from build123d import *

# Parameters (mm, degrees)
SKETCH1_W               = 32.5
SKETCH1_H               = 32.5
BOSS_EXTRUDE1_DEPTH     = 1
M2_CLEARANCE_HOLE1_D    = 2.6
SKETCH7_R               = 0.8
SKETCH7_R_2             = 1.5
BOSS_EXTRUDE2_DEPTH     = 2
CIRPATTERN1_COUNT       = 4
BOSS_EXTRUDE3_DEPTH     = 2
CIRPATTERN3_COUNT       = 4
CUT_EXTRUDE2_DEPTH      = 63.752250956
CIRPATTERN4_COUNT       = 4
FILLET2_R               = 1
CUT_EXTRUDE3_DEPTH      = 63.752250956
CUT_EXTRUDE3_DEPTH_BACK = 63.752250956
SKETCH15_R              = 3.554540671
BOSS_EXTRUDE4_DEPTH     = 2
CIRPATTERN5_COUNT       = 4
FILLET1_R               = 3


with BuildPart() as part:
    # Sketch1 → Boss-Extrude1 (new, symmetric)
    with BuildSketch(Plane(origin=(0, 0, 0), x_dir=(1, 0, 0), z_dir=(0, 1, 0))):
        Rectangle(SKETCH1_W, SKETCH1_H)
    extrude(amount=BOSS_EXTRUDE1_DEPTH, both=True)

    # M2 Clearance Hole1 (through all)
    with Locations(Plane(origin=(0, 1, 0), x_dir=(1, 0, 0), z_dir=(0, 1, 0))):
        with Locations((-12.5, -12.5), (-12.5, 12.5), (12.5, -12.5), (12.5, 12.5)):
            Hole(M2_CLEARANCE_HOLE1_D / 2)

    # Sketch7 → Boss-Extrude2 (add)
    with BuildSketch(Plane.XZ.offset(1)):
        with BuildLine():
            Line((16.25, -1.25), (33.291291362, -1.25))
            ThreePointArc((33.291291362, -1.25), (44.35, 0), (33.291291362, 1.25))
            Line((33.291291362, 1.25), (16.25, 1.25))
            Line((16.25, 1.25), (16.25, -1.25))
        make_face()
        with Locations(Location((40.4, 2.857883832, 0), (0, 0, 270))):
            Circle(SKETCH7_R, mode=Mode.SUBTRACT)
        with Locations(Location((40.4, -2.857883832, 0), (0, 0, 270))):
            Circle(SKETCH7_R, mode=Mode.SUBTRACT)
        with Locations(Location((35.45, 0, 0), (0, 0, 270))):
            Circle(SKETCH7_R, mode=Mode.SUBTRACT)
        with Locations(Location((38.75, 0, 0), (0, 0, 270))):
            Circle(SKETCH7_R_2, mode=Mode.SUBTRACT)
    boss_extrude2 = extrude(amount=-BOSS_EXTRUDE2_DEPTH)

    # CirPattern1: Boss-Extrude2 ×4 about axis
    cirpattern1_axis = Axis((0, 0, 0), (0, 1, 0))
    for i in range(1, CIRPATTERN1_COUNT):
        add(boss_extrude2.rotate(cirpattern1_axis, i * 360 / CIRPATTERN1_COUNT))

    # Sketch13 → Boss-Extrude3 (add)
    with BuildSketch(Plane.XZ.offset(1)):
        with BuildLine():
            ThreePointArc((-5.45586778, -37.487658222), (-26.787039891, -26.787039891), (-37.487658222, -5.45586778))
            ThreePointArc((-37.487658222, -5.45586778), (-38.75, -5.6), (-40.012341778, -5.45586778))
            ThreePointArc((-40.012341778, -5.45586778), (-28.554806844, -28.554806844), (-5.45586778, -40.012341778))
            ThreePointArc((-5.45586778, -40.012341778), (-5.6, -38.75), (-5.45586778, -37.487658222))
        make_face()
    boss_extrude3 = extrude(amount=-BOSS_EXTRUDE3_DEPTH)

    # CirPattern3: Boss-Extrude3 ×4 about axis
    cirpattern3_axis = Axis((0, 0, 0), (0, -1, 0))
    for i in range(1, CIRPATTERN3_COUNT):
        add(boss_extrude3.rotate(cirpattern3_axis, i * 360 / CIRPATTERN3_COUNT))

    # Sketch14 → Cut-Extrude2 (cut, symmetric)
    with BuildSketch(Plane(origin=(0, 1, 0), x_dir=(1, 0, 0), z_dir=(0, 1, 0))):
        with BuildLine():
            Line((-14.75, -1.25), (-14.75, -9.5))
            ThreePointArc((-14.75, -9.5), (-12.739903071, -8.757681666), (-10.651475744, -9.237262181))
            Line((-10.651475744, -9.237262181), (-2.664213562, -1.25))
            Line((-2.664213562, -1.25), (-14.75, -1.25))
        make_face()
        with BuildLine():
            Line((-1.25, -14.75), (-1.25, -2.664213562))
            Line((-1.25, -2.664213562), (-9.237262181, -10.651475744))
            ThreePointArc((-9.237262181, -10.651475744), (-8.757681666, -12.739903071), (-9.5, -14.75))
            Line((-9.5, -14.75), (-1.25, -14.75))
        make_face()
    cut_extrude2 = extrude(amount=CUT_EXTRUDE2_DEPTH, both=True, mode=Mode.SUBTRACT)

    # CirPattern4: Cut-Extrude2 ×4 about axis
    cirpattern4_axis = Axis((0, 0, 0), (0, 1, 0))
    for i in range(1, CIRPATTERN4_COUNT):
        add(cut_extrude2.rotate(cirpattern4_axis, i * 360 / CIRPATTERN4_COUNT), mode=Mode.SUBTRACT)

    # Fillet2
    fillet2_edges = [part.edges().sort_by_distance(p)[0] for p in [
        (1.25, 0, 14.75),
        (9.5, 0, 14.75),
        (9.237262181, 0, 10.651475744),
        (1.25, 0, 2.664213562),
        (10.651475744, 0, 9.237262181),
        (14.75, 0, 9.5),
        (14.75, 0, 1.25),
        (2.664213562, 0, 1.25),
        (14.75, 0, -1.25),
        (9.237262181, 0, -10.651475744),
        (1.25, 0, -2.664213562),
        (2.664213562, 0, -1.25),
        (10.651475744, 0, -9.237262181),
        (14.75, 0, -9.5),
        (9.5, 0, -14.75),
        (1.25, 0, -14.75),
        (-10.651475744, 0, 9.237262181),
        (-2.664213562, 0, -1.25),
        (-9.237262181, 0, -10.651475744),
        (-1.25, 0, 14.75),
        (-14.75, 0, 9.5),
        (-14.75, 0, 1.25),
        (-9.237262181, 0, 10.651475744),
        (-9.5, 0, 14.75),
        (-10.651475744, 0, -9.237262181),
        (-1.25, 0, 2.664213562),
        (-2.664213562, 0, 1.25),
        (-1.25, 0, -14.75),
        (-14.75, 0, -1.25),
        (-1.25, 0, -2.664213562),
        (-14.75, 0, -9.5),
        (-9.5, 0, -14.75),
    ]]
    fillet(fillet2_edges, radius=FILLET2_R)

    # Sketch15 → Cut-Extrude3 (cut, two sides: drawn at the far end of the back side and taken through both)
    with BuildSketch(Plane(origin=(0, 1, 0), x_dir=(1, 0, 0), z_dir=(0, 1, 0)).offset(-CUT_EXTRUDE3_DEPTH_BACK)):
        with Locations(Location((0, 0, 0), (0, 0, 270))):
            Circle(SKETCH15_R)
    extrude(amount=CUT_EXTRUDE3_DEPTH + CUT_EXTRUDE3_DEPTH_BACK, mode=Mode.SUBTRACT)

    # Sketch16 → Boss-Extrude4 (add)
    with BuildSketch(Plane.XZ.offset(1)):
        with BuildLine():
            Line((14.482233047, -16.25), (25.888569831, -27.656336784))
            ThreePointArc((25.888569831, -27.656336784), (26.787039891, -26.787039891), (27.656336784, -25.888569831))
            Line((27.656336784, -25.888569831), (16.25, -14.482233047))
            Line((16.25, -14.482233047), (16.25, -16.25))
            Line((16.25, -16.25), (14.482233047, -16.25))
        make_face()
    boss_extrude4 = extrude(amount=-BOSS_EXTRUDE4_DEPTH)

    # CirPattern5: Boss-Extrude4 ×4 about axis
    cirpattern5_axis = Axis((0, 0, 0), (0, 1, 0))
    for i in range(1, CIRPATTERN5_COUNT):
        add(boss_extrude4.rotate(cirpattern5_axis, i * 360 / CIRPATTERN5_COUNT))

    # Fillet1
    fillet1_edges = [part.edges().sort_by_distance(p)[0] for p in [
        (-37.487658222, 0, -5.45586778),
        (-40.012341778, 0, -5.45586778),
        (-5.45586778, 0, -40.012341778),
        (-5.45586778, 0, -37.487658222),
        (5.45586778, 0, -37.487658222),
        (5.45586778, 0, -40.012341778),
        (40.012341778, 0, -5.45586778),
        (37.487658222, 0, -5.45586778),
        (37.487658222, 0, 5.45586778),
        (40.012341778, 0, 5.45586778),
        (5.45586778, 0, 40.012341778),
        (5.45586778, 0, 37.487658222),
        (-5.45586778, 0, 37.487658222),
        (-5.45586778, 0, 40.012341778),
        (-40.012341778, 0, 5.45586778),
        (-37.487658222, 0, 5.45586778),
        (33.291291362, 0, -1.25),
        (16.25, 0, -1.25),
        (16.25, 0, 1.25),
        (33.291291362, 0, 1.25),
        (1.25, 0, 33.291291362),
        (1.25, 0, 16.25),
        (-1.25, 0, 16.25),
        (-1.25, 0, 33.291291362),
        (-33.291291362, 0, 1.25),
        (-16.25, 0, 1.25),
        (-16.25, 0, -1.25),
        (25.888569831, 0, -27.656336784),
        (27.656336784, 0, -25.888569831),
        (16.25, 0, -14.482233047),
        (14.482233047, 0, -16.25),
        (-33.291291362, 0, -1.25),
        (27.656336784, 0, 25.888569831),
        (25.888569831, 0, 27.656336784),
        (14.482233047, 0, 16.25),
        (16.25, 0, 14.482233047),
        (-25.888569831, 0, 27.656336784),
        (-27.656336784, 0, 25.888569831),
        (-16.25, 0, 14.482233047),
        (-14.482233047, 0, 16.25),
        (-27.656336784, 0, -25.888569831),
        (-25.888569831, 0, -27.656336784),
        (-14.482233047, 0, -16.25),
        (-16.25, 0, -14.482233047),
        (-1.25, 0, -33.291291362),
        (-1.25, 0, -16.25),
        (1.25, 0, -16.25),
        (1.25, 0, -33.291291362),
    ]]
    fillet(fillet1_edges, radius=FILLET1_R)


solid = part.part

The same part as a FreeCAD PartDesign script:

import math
import FreeCAD as App
import Part
import Sketcher

V = App.Vector
Q = App.Units.Quantity


def edges_at(feature, points):
    """Names of the edges that pass closest to the given points."""
    edges = feature.Shape.Edges
    near = lambda p: min(range(len(edges)), key=lambda i: edges[i].distToShape(Part.Vertex(*p))[0])
    return sorted({f"Edge{near(p) + 1}" for p in points})

doc = App.newDocument("Part")
body = doc.addObject("PartDesign::Body", "Body")

# Sketch on XZ plane
sketch1 = body.newObject("Sketcher::SketchObject", "Sketch")
sketch1.AttachmentSupport = (doc.getObject("XZ_Plane"), [""])
sketch1.MapMode = "FlatFace"
sketch1.addGeometry([
    Part.LineSegment(V(-16, -16, 0), V(-16, 16, 0)),
    Part.LineSegment(V(-16, 16, 0), V(16, 16, 0)),
    Part.LineSegment(V(16, 16, 0), V(16, -16, 0)),
    Part.LineSegment(V(16, -16, 0), V(-16, -16, 0)),
], False)
sketch1.addConstraint([
    Sketcher.Constraint("Coincident", 0, 2, 1, 1),
    Sketcher.Constraint("Coincident", 1, 2, 2, 1),
    Sketcher.Constraint("Coincident", 2, 2, 3, 1),
    Sketcher.Constraint("Coincident", 3, 2, 0, 1),
    Sketcher.Constraint("Vertical", 0),
    Sketcher.Constraint("Horizontal", 1),
    Sketcher.Constraint("Vertical", 2),
    Sketcher.Constraint("Horizontal", 3),
    Sketcher.Constraint("Symmetric", 0, 2, 2, 2, -1, 1),
    Sketcher.Constraint("Equal", 3, 0),
    Sketcher.Constraint("DistanceX", 1, 1, 1, 2, 32.5),
])
pad1 = body.newObject("PartDesign::Pad", "Pad")
pad1.Profile = sketch1
pad1.Length = 2
pad1.Midplane = True

# Sketch on XZ plane
sketch2 = body.newObject("Sketcher::SketchObject", "Sketch001")
sketch2.AttachmentSupport = (doc.getObject("XZ_Plane"), [""])
sketch2.MapMode = "FlatFace"
sketch2.AttachmentOffset = App.Placement(V(0, 0, -1), App.Rotation())
sketch2.addGeometry([
    Part.Circle(V(-12.5, 12.5, 0), V(0, 0, 1), 1.3),
    Part.Circle(V(-12.5, -12.5, 0), V(0, 0, 1), 1.3),
    Part.Circle(V(12.5, 12.5, 0), V(0, 0, 1), 1.3),
    Part.Circle(V(12.5, -12.5, 0), V(0, 0, 1), 1.3),
], False)
sketch2.addConstraint([
    Sketcher.Constraint("Equal", 0, 1),
    Sketcher.Constraint("Equal", 1, 2),
    Sketcher.Constraint("Equal", 2, 3),
    Sketcher.Constraint("Symmetric", 1, 3, 2, 3, -1, 1),
    Sketcher.Constraint("Symmetric", 0, 3, 3, 3, -1, 1),
    Sketcher.Constraint("Symmetric", 0, 3, 2, 3, -2),
    Sketcher.Constraint("Diameter", 0, 2.6),
    Sketcher.Constraint("DistanceY", 1, 3, 0, 3, 25.0),
    Sketcher.Constraint("DistanceX", 0, 3, 2, 3, 25.0),
])
doc.recompute()
hole = body.newObject("PartDesign::Hole", "Hole")
hole.Profile = sketch2
hole.ThreadType = "None"
hole.Diameter = 2.6
hole.DepthType = "ThroughAll"
hole.Reversed = True

# Sketch on XZ plane
sketch3 = body.newObject("Sketcher::SketchObject", "Sketch002")
sketch3.AttachmentSupport = (doc.getObject("XZ_Plane"), [""])
sketch3.MapMode = "FlatFace"
sketch3.AttachmentOffset = App.Placement(V(0, 0, 1), App.Rotation())
sketch3.addGeometry([
    Part.LineSegment(V(16.2, -1.2, 0), V(33.3, -1.2, 0)),  # 0
    Part.ArcOfCircle(Part.Circle(V(38.8, 0, 0), V(0, 0, 1), 5.6), math.radians(-167), math.radians(167)),  # 1
    Part.LineSegment(V(33.3, 1.2, 0), V(16.2, 1.2, 0)),  # 2
    Part.LineSegment(V(16.2, 1.2, 0), V(16.2, -1.2, 0)),  # 3
    Part.Circle(V(40.4, -2.9, 0), V(0, 0, 1), 0.8),  # 4
    Part.Circle(V(35.5, 0, 0), V(0, 0, 1), 0.8),  # 5
    Part.Circle(V(38.8, 0, 0), V(0, 0, 1), 1.5),  # 6
    Part.Circle(V(40.4, 2.9, 0), V(0, 0, 1), 0.8),  # 7
], False)
sketch3.addConstraint([
    Sketcher.Constraint("Coincident", 0, 2, 1, 1),
    Sketcher.Constraint("Coincident", 1, 2, 2, 1),
    Sketcher.Constraint("Coincident", 2, 2, 3, 1),
    Sketcher.Constraint("Coincident", 3, 2, 0, 1),
    Sketcher.Constraint("Horizontal", 0),
    Sketcher.Constraint("Horizontal", 2),
    Sketcher.Constraint("Vertical", 3),
    Sketcher.Constraint("Coincident", 6, 3, 1, 3),
    Sketcher.Constraint("Equal", 4, 5),
    Sketcher.Constraint("Equal", 5, 7),
    Sketcher.Constraint("Symmetric", 4, 3, 7, 3, -1),
    Sketcher.Constraint("Symmetric", 0, 2, 1, 2, -1),
    Sketcher.Constraint("PointOnObject", 5, 3, -1),
    Sketcher.Constraint("Diameter", 6, 3.0),
    Sketcher.Constraint("Diameter", 4, 1.6),
    Sketcher.Constraint("Radius", 1, 5.6),
    Sketcher.Constraint("DistanceY", 3, 2, 3, 1, 2.5),
    Sketcher.Constraint("DistanceX", -1, 1, 4, 3, 40.4),
    Sketcher.Constraint("DistanceX", 5, 3, 1, 3, 3.3),
    Sketcher.Constraint("DistanceX", 2, 2, 5, 3, 19.2),
    Sketcher.Constraint("DistanceX", -1, 1, 1, 3, 38.75),
    Sketcher.Constraint("DistanceY", 4, 3, -1, 1, 2.857884),
])
pad2 = body.newObject("PartDesign::Pad", "Pad001")
pad2.Profile = sketch3
pad2.Length = 2
pad2.Reversed = True
doc.recompute()

polarpattern = body.newObject("PartDesign::PolarPattern", "PolarPattern")
polarpattern.Originals = [pad2]
polarpattern.Axis = (doc.getObject("Y_Axis"), [""])
polarpattern.Angle = 360
polarpattern.Occurrences = 4
body.Tip = polarpattern

# Sketch on XZ plane
sketch4 = body.newObject("Sketcher::SketchObject", "Sketch003")
sketch4.AttachmentSupport = (doc.getObject("XZ_Plane"), [""])
sketch4.MapMode = "FlatFace"
sketch4.AttachmentOffset = App.Placement(V(0, 0, 1), App.Rotation())
sketch4.addGeometry([
    Part.ArcOfCircle(Part.Circle(V(0, 0, 0), V(0, 0, 1), 37.9), math.radians(-172), math.radians(-98)),
    Part.ArcOfCircle(Part.Circle(V(-38.8, 0, 0), V(0, 0, 1), 5.6), math.radians(-103), math.radians(-77)),
    Part.ArcOfCircle(Part.Circle(V(0, 0, 0), V(0, 0, 1), 40.4), math.radians(-172), math.radians(-98)),
    Part.ArcOfCircle(Part.Circle(V(0, -38.8, 0), V(0, 0, 1), 5.6), math.radians(167), math.radians(193)),
], False)
sketch4.addConstraint([
    Sketcher.Constraint("Coincident", 0, 1, 1, 2),
    Sketcher.Constraint("Coincident", 1, 1, 2, 1),
    Sketcher.Constraint("Coincident", 2, 2, 3, 2),
    Sketcher.Constraint("Coincident", 3, 1, 0, 2),
    Sketcher.Constraint("Coincident", 0, 3, -1, 1),
    Sketcher.Constraint("Coincident", 2, 3, -1, 1),
    Sketcher.Constraint("Equal", 1, 3),
    Sketcher.Constraint("PointOnObject", 1, 3, -1),
    Sketcher.Constraint("PointOnObject", 3, 3, -2),
    Sketcher.Constraint("Horizontal", 0, 1, 1, 1),
    Sketcher.Constraint("Vertical", 2, 2, 3, 1),
    Sketcher.Constraint("Radius", 1, 5.6),
    Sketcher.Constraint("DistanceX", 1, 3, -1, 1, 38.75),
    Sketcher.Constraint("Radius", 0, 37.882595),
])
pad3 = body.newObject("PartDesign::Pad", "Pad002")
pad3.Profile = sketch4
pad3.Length = 2
pad3.Reversed = True
doc.recompute()

polarpattern2 = body.newObject("PartDesign::PolarPattern", "PolarPattern001")
polarpattern2.Originals = [pad3]
polarpattern2.Axis = (doc.getObject("Y_Axis"), [""])
polarpattern2.Angle = 360
polarpattern2.Occurrences = 4
body.Tip = polarpattern2

# Sketch on XZ plane
sketch5 = body.newObject("Sketcher::SketchObject", "Sketch004")
sketch5.AttachmentSupport = (doc.getObject("XZ_Plane"), [""])
sketch5.MapMode = "FlatFace"
sketch5.AttachmentOffset = App.Placement(V(0, 0, -1), App.Rotation())
sketch5.addGeometry([
    Part.LineSegment(V(-14.8, 1.2, 0), V(-14.8, 9.5, 0)),  # 0
    Part.ArcOfCircle(Part.Circle(V(-12.5, 12.5, 0), V(0, 0, 1), 3.8), math.radians(-127), math.radians(-60)),  # 1
    Part.LineSegment(V(-10.7, 9.2, 0), V(-2.7, 1.2, 0)),  # 2
    Part.LineSegment(V(-2.7, 1.2, 0), V(-14.8, 1.2, 0)),  # 3
    Part.LineSegment(V(-1.2, 14.8, 0), V(-1.2, 2.7, 0)),  # 4
    Part.LineSegment(V(-1.2, 2.7, 0), V(-9.2, 10.7, 0)),  # 5
    Part.ArcOfCircle(Part.Circle(V(-12.5, 12.5, 0), V(0, 0, 1), 3.8), math.radians(-30), math.radians(37)),  # 6
    Part.LineSegment(V(-9.5, 14.8, 0), V(-1.2, 14.8, 0)),  # 7
], False)
sketch5.addConstraint([
    Sketcher.Constraint("Coincident", 0, 2, 1, 1),
    Sketcher.Constraint("Coincident", 1, 2, 2, 1),
    Sketcher.Constraint("Coincident", 2, 2, 3, 1),
    Sketcher.Constraint("Coincident", 3, 2, 0, 1),
    Sketcher.Constraint("Coincident", 4, 2, 5, 1),
    Sketcher.Constraint("Coincident", 5, 2, 6, 1),
    Sketcher.Constraint("Coincident", 6, 2, 7, 1),
    Sketcher.Constraint("Coincident", 7, 2, 4, 1),
    Sketcher.Constraint("Vertical", 0),
    Sketcher.Constraint("Horizontal", 3),
    Sketcher.Constraint("Vertical", 4),
    Sketcher.Constraint("Horizontal", 7),
    Sketcher.Constraint("Coincident", 6, 3, 1, 3),
    Sketcher.Constraint("Equal", 1, 6),
    Sketcher.Constraint("Parallel", 2, 5),
    Sketcher.Constraint("Equal", 7, 0),
    Sketcher.Constraint("Equal", 3, 4),
    Sketcher.Constraint("Equal", 2, 5),
    Sketcher.Constraint("Angle", 2, Q("-45 deg")),
    Sketcher.Constraint("Radius", 1, 3.75),
    Sketcher.Constraint("DistanceY", 0, 2, 6, 3, 3.0),
    Sketcher.Constraint("DistanceX", 7, 1, 7, 2, 8.25),
    Sketcher.Constraint("DistanceX", 1, 3, -1, 1, 12.5),
    Sketcher.Constraint("DistanceY", -1, 1, 1, 3, 12.5),
    Sketcher.Constraint("DistanceX", 3, 2, 3, 1, 12.085786),
])
pocket1 = body.newObject("PartDesign::Pocket", "Pocket")
pocket1.Profile = sketch5
pocket1.Length = 127.504502
pocket1.Midplane = True
doc.recompute()

polarpattern3 = body.newObject("PartDesign::PolarPattern", "PolarPattern002")
polarpattern3.Originals = [pocket1]
polarpattern3.Axis = (doc.getObject("Y_Axis"), [""])
polarpattern3.Angle = 360
polarpattern3.Occurrences = 4
body.Tip = polarpattern3
doc.recompute()

fillet = body.newObject("PartDesign::Fillet", "Fillet")
fillet.Base = (polarpattern3, edges_at(polarpattern3, [
    (1.25, 0, 14.75),
    (9.5, 0, 14.75),
    (9.237, 0, 10.651),
    (1.25, 0, 2.664),
    (10.651, 0, 9.237),
    (14.75, 0, 9.5),
    (14.75, 0, 1.25),
    (2.664, 0, 1.25),
    (14.75, 0, -1.25),
    (9.237, 0, -10.651),
    (1.25, 0, -2.664),
    (2.664, 0, -1.25),
    (10.651, 0, -9.237),
    (14.75, 0, -9.5),
    (9.5, 0, -14.75),
    (1.25, 0, -14.75),
    (-10.651, 0, 9.237),
    (-2.664, 0, -1.25),
    (-9.237, 0, -10.651),
    (-1.25, 0, 14.75),
    (-14.75, 0, 9.5),
    (-14.75, 0, 1.25),
    (-9.237, 0, 10.651),
    (-9.5, 0, 14.75),
    (-10.651, 0, -9.237),
    (-1.25, 0, 2.664),
    (-2.664, 0, 1.25),
    (-1.25, 0, -14.75),
    (-14.75, 0, -1.25),
    (-1.25, 0, -2.664),
    (-14.75, 0, -9.5),
    (-9.5, 0, -14.75),
]))
fillet.Radius = 1

# Sketch on XZ plane
sketch6 = body.newObject("Sketcher::SketchObject", "Sketch005")
sketch6.AttachmentSupport = (doc.getObject("XZ_Plane"), [""])
sketch6.MapMode = "FlatFace"
sketch6.AttachmentOffset = App.Placement(V(0, 0, -1), App.Rotation())
sketch6.addGeometry(Part.Circle(V(0, 0, 0), V(0, 0, 1), 3.6), False)
sketch6.addConstraint([
    Sketcher.Constraint("Coincident", 0, 3, -1, 1),
    Sketcher.Constraint("Diameter", 0, 7.109081),
])
pocket2 = body.newObject("PartDesign::Pocket", "Pocket001")
pocket2.Profile = sketch6
pocket2.Type = "ThroughAll"
pocket2.Midplane = True

# Sketch on XZ plane
sketch7 = body.newObject("Sketcher::SketchObject", "Sketch006")
sketch7.AttachmentSupport = (doc.getObject("XZ_Plane"), [""])
sketch7.MapMode = "FlatFace"
sketch7.AttachmentOffset = App.Placement(V(0, 0, 1), App.Rotation())
sketch7.addGeometry([
    Part.LineSegment(V(14.5, -16.2, 0), V(25.9, -27.7, 0)),  # 0
    Part.ArcOfCircle(Part.Circle(V(0, 0, 0), V(0, 0, 1), 37.9), math.radians(-46.89), math.radians(-43.11)),  # 1
    Part.LineSegment(V(27.7, -25.9, 0), V(16.2, -14.5, 0)),  # 2
    Part.LineSegment(V(16.2, -14.5, 0), V(16.2, -16.2, 0)),  # 3
    Part.LineSegment(V(16.2, -16.2, 0), V(14.5, -16.2, 0)),  # 4
], False)
sketch7.addConstraint([
    Sketcher.Constraint("Coincident", 0, 2, 1, 1),
    Sketcher.Constraint("Coincident", 1, 2, 2, 1),
    Sketcher.Constraint("Coincident", 2, 2, 3, 1),
    Sketcher.Constraint("Coincident", 3, 2, 4, 1),
    Sketcher.Constraint("Coincident", 4, 2, 0, 1),
    Sketcher.Constraint("Vertical", 3),
    Sketcher.Constraint("Horizontal", 4),
    Sketcher.Constraint("Coincident", 1, 3, -1, 1),
    Sketcher.Constraint("Parallel", 0, 2),
    Sketcher.Constraint("Equal", 4, 3),
    Sketcher.Constraint("Equal", 0, 2),
    Sketcher.Constraint("Angle", 0, Q("-45 deg")),
    Sketcher.Constraint("DistanceX", -1, 1, 2, 2, 16.25),
    Sketcher.Constraint("Radius", 1, 37.882594),
    Sketcher.Constraint("DistanceX", 4, 2, 4, 1, 1.767767),
])
pad4 = body.newObject("PartDesign::Pad", "Pad003")
pad4.Profile = sketch7
pad4.Length = 2
pad4.Reversed = True
doc.recompute()

polarpattern4 = body.newObject("PartDesign::PolarPattern", "PolarPattern003")
polarpattern4.Originals = [pad4]
polarpattern4.Axis = (doc.getObject("Y_Axis"), [""])
polarpattern4.Angle = 360
polarpattern4.Occurrences = 4
body.Tip = polarpattern4
doc.recompute()

fillet2 = body.newObject("PartDesign::Fillet", "Fillet001")
fillet2.Base = (polarpattern4, edges_at(polarpattern4, [
    (-37.488, 0, -5.456),
    (-40.012, 0, -5.456),
    (-5.456, 0, -40.012),
    (-5.456, 0, -37.488),
    (5.456, 0, -37.488),
    (5.456, 0, -40.012),
    (40.012, 0, -5.456),
    (37.488, 0, -5.456),
    (37.488, 0, 5.456),
    (40.012, 0, 5.456),
    (5.456, 0, 40.012),
    (5.456, 0, 37.488),
    (-5.456, 0, 37.488),
    (-5.456, 0, 40.012),
    (-40.012, 0, 5.456),
    (-37.488, 0, 5.456),
    (33.291, 0, -1.25),
    (16.25, 0, -1.25),
    (16.25, 0, 1.25),
    (33.291, 0, 1.25),
    (1.25, 0, 33.291),
    (1.25, 0, 16.25),
    (-1.25, 0, 16.25),
    (-1.25, 0, 33.291),
    (-33.291, 0, 1.25),
    (-16.25, 0, 1.25),
    (-16.25, 0, -1.25),
    (25.889, 0, -27.656),
    (27.656, 0, -25.889),
    (16.25, 0, -14.482),
    (14.482, 0, -16.25),
    (-33.291, 0, -1.25),
    (27.656, 0, 25.889),
    (25.889, 0, 27.656),
    (14.482, 0, 16.25),
    (16.25, 0, 14.482),
    (-25.889, 0, 27.656),
    (-27.656, 0, 25.889),
    (-16.25, 0, 14.482),
    (-14.482, 0, 16.25),
    (-27.656, 0, -25.889),
    (-25.889, 0, -27.656),
    (-14.482, 0, -16.25),
    (-16.25, 0, -14.482),
    (-1.25, 0, -33.291),
    (-1.25, 0, -16.25),
    (1.25, 0, -16.25),
    (1.25, 0, -33.291),
]))
fillet2.Radius = 3

doc.recompute()
